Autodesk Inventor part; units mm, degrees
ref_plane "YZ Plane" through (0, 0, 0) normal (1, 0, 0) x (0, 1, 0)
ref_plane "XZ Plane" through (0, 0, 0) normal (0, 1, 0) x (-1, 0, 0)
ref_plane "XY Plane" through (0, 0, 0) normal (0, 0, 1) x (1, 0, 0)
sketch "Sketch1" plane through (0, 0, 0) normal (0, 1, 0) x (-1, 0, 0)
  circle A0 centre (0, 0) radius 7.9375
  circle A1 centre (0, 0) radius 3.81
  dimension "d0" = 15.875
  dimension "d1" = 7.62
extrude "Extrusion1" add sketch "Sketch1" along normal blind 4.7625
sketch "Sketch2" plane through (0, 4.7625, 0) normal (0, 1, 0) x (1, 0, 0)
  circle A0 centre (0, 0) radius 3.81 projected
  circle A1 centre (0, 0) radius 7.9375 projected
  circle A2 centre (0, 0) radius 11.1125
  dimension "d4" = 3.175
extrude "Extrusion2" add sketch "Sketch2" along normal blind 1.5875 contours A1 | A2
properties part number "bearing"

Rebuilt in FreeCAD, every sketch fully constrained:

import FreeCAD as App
import Part
import Sketcher

V = App.Vector
Q = App.Units.Quantity

doc = App.newDocument("Part")
params = doc.addObject("Spreadsheet::Sheet", "Params")
for row, (alias, value) in enumerate([
    ("sketch1_diameter", "0.3 in"),
    ("sketch1_diameter2", "0.625 in"),
    ("pad1_length", "0.1875 in"),
    ("sketch2_diameter", "0.3 in"),
    ("sketch2_diameter2", "0.875 in"),
    ("pad2_length", "0.0625 in"),
], start=1):
    params.set(f"A{row}", alias)
    params.set(f"B{row}", "=" + value)
    params.setAlias(f"B{row}", alias)

body = doc.addObject("PartDesign::Body", "Body")

# Sketch on XZ plane
sketch1 = body.newObject("Sketcher::SketchObject", "Sketch")
sketch1.AttachmentSupport = (doc.getObject("XZ_Plane"), [""])
sketch1.MapMode = "FlatFace"
sketch1.addGeometry([
    Part.Circle(V(0, 0, 0), V(0, 0, 1), 7.9375),
    Part.Circle(V(0, 0, 0), V(0, 0, 1), 3.81),
], False)
sketch1.addConstraint([
    Sketcher.Constraint("Coincident", 0, 3, -1, 1),
    Sketcher.Constraint("Coincident", 1, 3, -1, 1),
    Sketcher.Constraint("Diameter", 1, Q("0.3 in")),
    Sketcher.Constraint("Diameter", 0, Q("0.625 in")),
])
sketch1.setExpression("Constraints[2]", "Params.sketch1_diameter")
sketch1.setExpression("Constraints[3]", "Params.sketch1_diameter2")
pad1 = body.newObject("PartDesign::Pad", "Pad")
pad1.Profile = sketch1
pad1.setExpression("Length", "Params.pad1_length")
pad1.Reversed = True

# Sketch on XZ plane
sketch2 = body.newObject("Sketcher::SketchObject", "Sketch001")
sketch2.AttachmentSupport = (doc.getObject("XZ_Plane"), [""])
sketch2.MapMode = "FlatFace"
sketch2.AttachmentOffset = App.Placement(V(0, 0, -0.1875 * 25.4), App.Rotation())
sketch2.addGeometry([
    Part.Circle(V(0, 0, 0), V(0, 0, 1), 11.1125),
    Part.Circle(V(0, 0, 0), V(0, 0, 1), 3.81),
], False)
sketch2.addConstraint([
    Sketcher.Constraint("Coincident", 0, 3, -1, 1),
    Sketcher.Constraint("Coincident", 1, 3, -1, 1),
    Sketcher.Constraint("Diameter", 1, Q("0.3 in")),
    Sketcher.Constraint("Diameter", 0, Q("0.875 in")),
])
sketch2.setExpression("Constraints[2]", "Params.sketch2_diameter")
sketch2.setExpression("Constraints[3]", "Params.sketch2_diameter2")
pad2 = body.newObject("PartDesign::Pad", "Pad001")
pad2.Profile = sketch2
pad2.setExpression("Length", "Params.pad2_length")
pad2.Reversed = True

doc.recompute()
